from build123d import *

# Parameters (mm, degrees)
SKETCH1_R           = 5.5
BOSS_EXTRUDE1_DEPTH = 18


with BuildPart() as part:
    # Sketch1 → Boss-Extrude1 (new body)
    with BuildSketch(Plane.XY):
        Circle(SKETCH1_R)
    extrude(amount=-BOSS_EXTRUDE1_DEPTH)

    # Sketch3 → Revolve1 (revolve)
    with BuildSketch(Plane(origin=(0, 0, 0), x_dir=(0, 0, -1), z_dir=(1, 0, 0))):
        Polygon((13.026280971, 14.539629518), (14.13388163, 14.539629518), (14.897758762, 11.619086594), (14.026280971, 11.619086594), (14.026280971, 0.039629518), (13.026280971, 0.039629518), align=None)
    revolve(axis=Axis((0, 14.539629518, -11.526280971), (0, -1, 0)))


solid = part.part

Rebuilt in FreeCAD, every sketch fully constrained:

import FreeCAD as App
import Part
import Sketcher
from FreeCAD import Vector
Q = App.Units.Quantity


def add_polygon(sketch, points):
    """Adds a closed chain of lines whose ends are joined by coincident constraints."""
    first, n = sketch.GeometryCount, len(points)
    for a, b in zip(points, points[1:] + points[:1]):
        sketch.addGeometry(Part.LineSegment(App.Vector(*a, 0), App.Vector(*b, 0)), False)
    for i in range(n):
        sketch.addConstraint(Sketcher.Constraint("Coincident", first + i, 2, first + (i + 1) % n, 1))

doc = App.newDocument("Part")
body = doc.addObject("PartDesign::Body", "Body")

sketch1 = doc.addObject("Sketcher::SketchObject", "Sketch")
body.addObject(sketch1)
sketch1.AttachmentSupport = (doc.XY_Plane, [""])
sketch1.MapMode = "FlatFace"
sketch1.addGeometry(Part.Circle(Vector(0, 0, 0), Vector(0, 0, 1), 6), False)
sketch1.addConstraint(Sketcher.Constraint("Coincident", 0, 3, -1, 1))
sketch1.addConstraint(Sketcher.Constraint("Diameter", 0, Q("11 mm")))
pad1 = doc.addObject("PartDesign::Pad", "Pad")
body.addObject(pad1)
pad1.Profile = sketch1
pad1.Length = 18
pad1.Reversed = True

sketch2 = doc.addObject("Sketcher::SketchObject", "Sketch001")
body.addObject(sketch2)
sketch2.AttachmentSupport = (doc.YZ_Plane, [""])
sketch2.MapMode = "FlatFace"
add_polygon(sketch2, [(14.5, -14.1), (14.5, -13), (0, -13), (0, -14), (11.6, -14), (11.6, -14.9)])
sketch2.addGeometry(Part.LineSegment(Vector(14.5, -11.5, 0), Vector(0, -11.5, 0)), True)
sketch2.addConstraint(Sketcher.Constraint("Vertical", 0))
sketch2.addConstraint(Sketcher.Constraint("Horizontal", 1))
sketch2.addConstraint(Sketcher.Constraint("Vertical", 2))
sketch2.addConstraint(Sketcher.Constraint("Horizontal", 3))
sketch2.addConstraint(Sketcher.Constraint("Vertical", 4))
sketch2.addConstraint(Sketcher.Constraint("Horizontal", 6))
sketch2.addConstraint(Sketcher.Constraint("Vertical", 5, 2, 6, 1))
sketch2.addConstraint(Sketcher.Constraint("Vertical", 2, 2, 6, 2))
sketch2.addConstraint(Sketcher.Constraint("DistanceY", 2, 2, 2, 1, Q("1 mm")))
sketch2.addConstraint(Sketcher.Constraint("DistanceX", 1, 2, 1, 1, Q("14.5 mm")))
sketch2.addConstraint(Sketcher.Constraint("DistanceY", 0, 2, 6, 1, Q("1.5 mm")))
sketch2.addConstraint(Sketcher.Constraint("DistanceY", 0, 1, 0, 2, Q("1.107601 mm")))
sketch2.addConstraint(Sketcher.Constraint("DistanceX", 3, 1, 3, 2, Q("11.579457 mm")))
sketch2.addConstraint(Sketcher.Constraint("DistanceY", 4, 2, 4, 1, Q("0.871478 mm")))
sketch2.addConstraint(Sketcher.Constraint("DistanceX", -1, 1, 0, 2, Q("14.53963 mm")))
sketch2.addConstraint(Sketcher.Constraint("DistanceY", 0, 2, -1, 1, Q("13.026281 mm")))
revolution = doc.addObject("PartDesign::Revolution", "Revolution")
body.addObject(revolution)
revolution.Profile = sketch2
revolution.ReferenceAxis = (sketch2, ["Axis0"])
revolution.Angle = 360

doc.recompute()
